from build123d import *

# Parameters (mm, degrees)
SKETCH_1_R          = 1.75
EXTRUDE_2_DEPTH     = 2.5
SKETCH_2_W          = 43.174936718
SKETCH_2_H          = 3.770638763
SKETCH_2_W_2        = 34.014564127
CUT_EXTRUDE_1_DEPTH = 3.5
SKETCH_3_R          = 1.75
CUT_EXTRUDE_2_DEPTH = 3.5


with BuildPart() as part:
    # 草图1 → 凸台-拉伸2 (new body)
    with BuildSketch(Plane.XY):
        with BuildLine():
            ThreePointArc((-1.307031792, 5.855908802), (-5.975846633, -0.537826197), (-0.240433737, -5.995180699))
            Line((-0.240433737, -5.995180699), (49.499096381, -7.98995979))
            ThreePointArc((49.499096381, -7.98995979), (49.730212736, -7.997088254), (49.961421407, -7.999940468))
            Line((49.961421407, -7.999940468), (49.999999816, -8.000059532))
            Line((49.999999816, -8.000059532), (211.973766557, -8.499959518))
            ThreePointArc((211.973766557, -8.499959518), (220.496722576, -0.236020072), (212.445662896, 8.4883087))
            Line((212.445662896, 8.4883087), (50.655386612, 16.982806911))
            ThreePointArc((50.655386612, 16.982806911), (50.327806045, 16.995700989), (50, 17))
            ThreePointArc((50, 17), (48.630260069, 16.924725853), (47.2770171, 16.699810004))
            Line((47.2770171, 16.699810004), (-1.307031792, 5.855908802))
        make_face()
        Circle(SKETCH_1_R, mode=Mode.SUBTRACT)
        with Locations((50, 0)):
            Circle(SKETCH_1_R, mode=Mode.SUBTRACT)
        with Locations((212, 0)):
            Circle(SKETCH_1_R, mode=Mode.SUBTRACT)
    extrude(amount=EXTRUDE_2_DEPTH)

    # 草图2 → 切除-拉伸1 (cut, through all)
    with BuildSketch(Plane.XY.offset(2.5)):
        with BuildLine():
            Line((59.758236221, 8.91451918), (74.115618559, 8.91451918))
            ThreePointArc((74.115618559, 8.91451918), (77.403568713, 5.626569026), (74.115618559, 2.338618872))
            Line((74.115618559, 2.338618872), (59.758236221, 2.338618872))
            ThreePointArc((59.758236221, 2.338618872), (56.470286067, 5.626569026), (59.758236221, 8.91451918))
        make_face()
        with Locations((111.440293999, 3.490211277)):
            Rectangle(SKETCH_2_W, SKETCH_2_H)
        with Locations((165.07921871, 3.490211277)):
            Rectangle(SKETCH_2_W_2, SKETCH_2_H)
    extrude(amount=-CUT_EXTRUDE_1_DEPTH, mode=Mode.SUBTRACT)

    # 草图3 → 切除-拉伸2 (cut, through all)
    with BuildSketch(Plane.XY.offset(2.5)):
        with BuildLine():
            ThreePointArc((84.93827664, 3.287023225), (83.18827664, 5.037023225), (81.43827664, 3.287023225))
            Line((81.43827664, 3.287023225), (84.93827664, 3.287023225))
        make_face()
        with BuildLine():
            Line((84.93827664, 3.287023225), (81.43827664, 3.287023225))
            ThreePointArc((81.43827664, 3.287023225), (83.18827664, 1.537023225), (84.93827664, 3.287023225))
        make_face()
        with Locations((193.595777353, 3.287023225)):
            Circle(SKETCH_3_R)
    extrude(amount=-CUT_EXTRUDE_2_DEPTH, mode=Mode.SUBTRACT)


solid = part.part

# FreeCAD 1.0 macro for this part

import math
import FreeCAD as App
import Part
import Sketcher
from FreeCAD import Vector
Q = App.Units.Quantity


def add_polygon(sketch, points):
    """Adds a closed chain of lines whose ends are joined by coincident constraints."""
    first, n = sketch.GeometryCount, len(points)
    for a, b in zip(points, points[1:] + points[:1]):
        sketch.addGeometry(Part.LineSegment(App.Vector(*a, 0), App.Vector(*b, 0)), False)
    for i in range(n):
        sketch.addConstraint(Sketcher.Constraint("Coincident", first + i, 2, first + (i + 1) % n, 1))

doc = App.newDocument("Part")
body = doc.addObject("PartDesign::Body", "Body")

# Sketch on XY plane
sketch1 = body.newObject("Sketcher::SketchObject", "Sketch")
sketch1.AttachmentSupport = (doc.getObject("XY_Plane"), [""])
sketch1.MapMode = "FlatFace"
sketch1.addGeometry(Part.ArcOfCircle(Part.Circle(Vector(0, 0, 0), Vector(0, 0, 1), 6), math.radians(103), math.radians(268)), False)
sketch1.addGeometry(Part.LineSegment(Vector(-0.24, -5.995, 0), Vector(49.499, -7.99, 0)), False)
sketch1.addGeometry(Part.ArcOfCircle(Part.Circle(Vector(50, 4.5, 0), Vector(0, 0, 1), 12.5), math.radians(-92.3), math.radians(-90.18)), False)
sketch1.addGeometry(Part.LineSegment(Vector(49.961, -8, 0), Vector(50, -8, 0)), False)
sketch1.addGeometry(Part.LineSegment(Vector(50, -8, 0), Vector(211.974, -8.5, 0)), False)
sketch1.addGeometry(Part.ArcOfCircle(Part.Circle(Vector(212, 0, 0), Vector(0, 0, 1), 8.5), math.radians(-90), math.radians(87)), False)
sketch1.addGeometry(Part.LineSegment(Vector(212.446, 8.488, 0), Vector(50.655, 16.983, 0)), False)
sketch1.addGeometry(Part.ArcOfCircle(Part.Circle(Vector(50, 4.5, 0), Vector(0, 0, 1), 12.5), math.radians(86.99), math.radians(90)), False)
sketch1.addGeometry(Part.ArcOfCircle(Part.Circle(Vector(50, 4.5, 0), Vector(0, 0, 1), 12.5), math.radians(90), math.radians(102.58)), False)
sketch1.addGeometry(Part.LineSegment(Vector(47.277, 16.7, 0), Vector(-1.307, 5.856, 0)), False)
sketch1.addGeometry(Part.Circle(Vector(0, 0, 0), Vector(0, 0, 1), 1.75), False)
sketch1.addGeometry(Part.Circle(Vector(50, 0, 0), Vector(0, 0, 1), 1.75), False)
sketch1.addGeometry(Part.Circle(Vector(212, 0, 0), Vector(0, 0, 1), 1.75), False)
sketch1.addConstraint(Sketcher.Constraint("Tangent", 0, 2, 1, 1))
sketch1.addConstraint(Sketcher.Constraint("Tangent", 1, 2, 2, 1))
sketch1.addConstraint(Sketcher.Constraint("Tangent", 2, 2, 3, 1))
sketch1.addConstraint(Sketcher.Constraint("Coincident", 3, 2, 4, 1))
sketch1.addConstraint(Sketcher.Constraint("Tangent", 4, 2, 5, 1))
sketch1.addConstraint(Sketcher.Constraint("Tangent", 5, 2, 6, 1))
sketch1.addConstraint(Sketcher.Constraint("Tangent", 6, 2, 7, 1))
sketch1.addConstraint(Sketcher.Constraint("Tangent", 7, 2, 8, 1))
sketch1.addConstraint(Sketcher.Constraint("Tangent", 8, 2, 9, 1))
sketch1.addConstraint(Sketcher.Constraint("Tangent", 9, 2, 0, 1))
sketch1.addConstraint(Sketcher.Constraint("Coincident", 0, 3, -1, 1))
sketch1.addConstraint(Sketcher.Constraint("Coincident", 10, 3, -1, 1))
sketch1.addConstraint(Sketcher.Constraint("Coincident", 7, 3, 2, 3))
sketch1.addConstraint(Sketcher.Constraint("Coincident", 12, 3, 5, 3))
sketch1.addConstraint(Sketcher.Constraint("Equal", 7, 8))
sketch1.addConstraint(Sketcher.Constraint("Equal", 10, 11))
sketch1.addConstraint(Sketcher.Constraint("Equal", 11, 12))
sketch1.addConstraint(Sketcher.Constraint("PointOnObject", 5, 3, -1))
sketch1.addConstraint(Sketcher.Constraint("PointOnObject", 11, 3, -1))
sketch1.addConstraint(Sketcher.Constraint("Parallel", 3, 4))
sketch1.addConstraint(Sketcher.Constraint("Vertical", 8, 3, 11, 3))
sketch1.addConstraint(Sketcher.Constraint("Vertical", 11, 3, 3, 2))
sketch1.addConstraint(Sketcher.Constraint("Vertical", 3, 2, 7, 2))
sketch1.addConstraint(Sketcher.Constraint("Equal", 1, 9))
sketch1.addConstraint(Sketcher.Constraint("Radius", 0, Q("6 mm")))
sketch1.addConstraint(Sketcher.Constraint("Diameter", 10, Q("3.5 mm")))
sketch1.addConstraint(Sketcher.Constraint("Radius", 2, Q("12.500001 mm")))
sketch1.addConstraint(Sketcher.Constraint("Radius", 5, Q("8.5 mm")))
sketch1.addConstraint(Sketcher.Constraint("DistanceX", -1, 1, 2, 3, Q("50 mm")))
sketch1.addConstraint(Sketcher.Constraint("DistanceX", -1, 1, 5, 3, Q("212 mm")))
sketch1.addConstraint(Sketcher.Constraint("DistanceY", -1, 1, 7, 2, Q("17 mm")))
pad1 = body.newObject("PartDesign::Pad", "Pad")
pad1.Profile = sketch1
pad1.Length = 2.5

# Sketch on XY plane
sketch2 = body.newObject("Sketcher::SketchObject", "Sketch001")
sketch2.AttachmentSupport = (doc.getObject("XY_Plane"), [""])
sketch2.MapMode = "FlatFace"
sketch2.AttachmentOffset = App.Placement(Vector(0, 0, 2.5), App.Rotation())
sketch2.addGeometry(Part.LineSegment(Vector(74.1, 8.9, 0), Vector(59.8, 8.9, 0)), False)  # 0
sketch2.addGeometry(Part.ArcOfCircle(Part.Circle(Vector(59.8, 5.6, 0), Vector(0, 0, 1), 3.3), math.radians(90), math.radians(270)), False)  # 1
sketch2.addGeometry(Part.LineSegment(Vector(59.8, 2.3, 0), Vector(74.1, 2.3, 0)), False)  # 2
sketch2.addGeometry(Part.ArcOfCircle(Part.Circle(Vector(74.1, 5.6, 0), Vector(0, 0, 1), 3.3), math.radians(-90), math.radians(90)), False)  # 3
add_polygon(sketch2, [(89.9, 5.4), (89.9, 1.6), (133, 1.6), (133, 5.4)])  # lines 4-7
add_polygon(sketch2, [(148.1, 5.4), (148.1, 1.6), (182.1, 1.6), (182.1, 5.4)])  # lines 8-11
sketch2.addConstraint(Sketcher.Constraint("Tangent", 0, 2, 1, 1))
sketch2.addConstraint(Sketcher.Constraint("Tangent", 1, 2, 2, 1))
sketch2.addConstraint(Sketcher.Constraint("Tangent", 2, 2, 3, 1))
sketch2.addConstraint(Sketcher.Constraint("Tangent", 3, 2, 0, 1))
sketch2.addConstraint(Sketcher.Constraint("Horizontal", 0))
sketch2.addConstraint(Sketcher.Constraint("Horizontal", 2))
sketch2.addConstraint(Sketcher.Constraint("Vertical", 4))
sketch2.addConstraint(Sketcher.Constraint("Horizontal", 5))
sketch2.addConstraint(Sketcher.Constraint("Vertical", 6))
sketch2.addConstraint(Sketcher.Constraint("Horizontal", 7))
sketch2.addConstraint(Sketcher.Constraint("Vertical", 8))
sketch2.addConstraint(Sketcher.Constraint("Horizontal", 9))
sketch2.addConstraint(Sketcher.Constraint("Vertical", 10))
sketch2.addConstraint(Sketcher.Constraint("Horizontal", 11))
sketch2.addConstraint(Sketcher.Constraint("Horizontal", 5, 2, 8, 2))
sketch2.addConstraint(Sketcher.Constraint("Horizontal", 7, 2, 10, 2))
sketch2.addConstraint(Sketcher.Constraint("Radius", 1, Q("3.28795 mm")))
sketch2.addConstraint(Sketcher.Constraint("DistanceY", 4, 2, 4, 1, Q("3.770639 mm")))
sketch2.addConstraint(Sketcher.Constraint("DistanceX", -1, 1, 9, 2, Q("182.086501 mm")))
sketch2.addConstraint(Sketcher.Constraint("DistanceX", 0, 2, 0, 1, Q("14.357382 mm")))
sketch2.addConstraint(Sketcher.Constraint("DistanceX", 5, 1, 5, 2, Q("43.174937 mm")))
sketch2.addConstraint(Sketcher.Constraint("DistanceX", 9, 1, 9, 2, Q("34.014564 mm")))
sketch2.addConstraint(Sketcher.Constraint("DistanceY", -1, 1, 1, 3, Q("5.626569 mm")))
sketch2.addConstraint(Sketcher.Constraint("DistanceX", -1, 1, 3, 3, Q("74.115619 mm")))
sketch2.addConstraint(Sketcher.Constraint("DistanceY", -1, 1, 4, 2, Q("1.604892 mm")))
sketch2.addConstraint(Sketcher.Constraint("DistanceX", 1, 2, 4, 2, Q("30.094589 mm")))
pocket1 = body.newObject("PartDesign::Pocket", "Pocket")
pocket1.Profile = sketch2
pocket1.Type = "ThroughAll"

# Sketch on XY plane
sketch3 = body.newObject("Sketcher::SketchObject", "Sketch002")
sketch3.AttachmentSupport = (doc.getObject("XY_Plane"), [""])
sketch3.MapMode = "FlatFace"
sketch3.AttachmentOffset = App.Placement(Vector(0, 0, 2.5), App.Rotation())
sketch3.addGeometry(Part.Circle(Vector(83.2, 3.3, 0), Vector(0, 0, 1), 1.8), False)
sketch3.addGeometry(Part.Circle(Vector(193.6, 3.3, 0), Vector(0, 0, 1), 1.8), False)
sketch3.addConstraint(Sketcher.Constraint("Equal", 0, 1))
sketch3.addConstraint(Sketcher.Constraint("Horizontal", 0, 3, 1, 3))
sketch3.addConstraint(Sketcher.Constraint("Diameter", 0, Q("3.5 mm")))
sketch3.addConstraint(Sketcher.Constraint("DistanceX", 0, 3, 1, 3, Q("110.407501 mm")))
sketch3.addConstraint(Sketcher.Constraint("DistanceX", -1, 1, 0, 3, Q("83.188277 mm")))
sketch3.addConstraint(Sketcher.Constraint("DistanceY", -1, 1, 0, 3, Q("3.287023 mm")))
pocket2 = body.newObject("PartDesign::Pocket", "Pocket001")
pocket2.Profile = sketch3
pocket2.Type = "ThroughAll"

doc.recompute()
